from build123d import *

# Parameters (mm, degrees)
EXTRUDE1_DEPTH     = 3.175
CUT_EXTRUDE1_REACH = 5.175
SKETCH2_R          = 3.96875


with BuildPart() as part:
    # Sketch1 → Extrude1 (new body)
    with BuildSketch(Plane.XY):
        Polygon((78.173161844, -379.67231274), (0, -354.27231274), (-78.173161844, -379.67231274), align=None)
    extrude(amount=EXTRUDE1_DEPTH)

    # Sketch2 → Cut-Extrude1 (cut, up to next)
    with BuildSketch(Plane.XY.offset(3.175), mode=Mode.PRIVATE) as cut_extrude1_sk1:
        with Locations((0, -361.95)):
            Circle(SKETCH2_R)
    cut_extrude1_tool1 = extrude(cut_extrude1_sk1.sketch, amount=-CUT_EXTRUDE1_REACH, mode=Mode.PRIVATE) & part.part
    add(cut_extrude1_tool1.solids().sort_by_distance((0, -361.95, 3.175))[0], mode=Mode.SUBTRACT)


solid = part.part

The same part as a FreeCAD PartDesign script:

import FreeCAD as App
import Part
import Sketcher
Q = App.Units.Quantity

doc = App.newDocument("Part")
body = doc.addObject("PartDesign::Body", "Body")

# Sketch on XY plane
sketch1 = body.newObject("Sketcher::SketchObject", "Sketch")
sketch1.AttachmentSupport = (doc.getObject("XY_Plane"), [""])
sketch1.MapMode = "FlatFace"
sketch1.addGeometry([
    Part.LineSegment(App.Vector(78.173162, -379.672313, 0), App.Vector(0, -354.272313, 0)),
    Part.LineSegment(App.Vector(0, -354.272313, 0), App.Vector(-78.173162, -379.672313, 0)),
    Part.LineSegment(App.Vector(-78.173162, -379.672313, 0), App.Vector(78.173162, -379.672313, 0)),
], False)
sketch1.addConstraint([
    Sketcher.Constraint("Coincident", 0, 2, 1, 1),
    Sketcher.Constraint("Coincident", 1, 2, 2, 1),
    Sketcher.Constraint("Coincident", 2, 2, 0, 1),
    Sketcher.Constraint("Horizontal", 2),
    Sketcher.Constraint("PointOnObject", 0, 2, -2),
    Sketcher.Constraint("Equal", 0, 1),
    Sketcher.Constraint("Angle", 0, Q("162 deg")),
    Sketcher.Constraint("DistanceY", 1, 2, 0, 2, Q("1 in")),
    Sketcher.Constraint("DistanceY", 0, 2, -1, 1, Q("354.272313 mm")),
])
pad1 = body.newObject("PartDesign::Pad", "Pad")
pad1.Profile = sketch1
pad1.Length = Q("0.125 in")

# Sketch on XY plane
sketch2 = body.newObject("Sketcher::SketchObject", "Sketch001")
sketch2.AttachmentSupport = (doc.getObject("XY_Plane"), [""])
sketch2.MapMode = "FlatFace"
sketch2.AttachmentOffset = App.Placement(App.Vector(0, 0, 0.125 * 25.4), App.Rotation())
sketch2.addGeometry(Part.Circle(App.Vector(0, -361.95, 0), App.Vector(0, 0, 1), 3.96875), False)
sketch2.addConstraint([
    Sketcher.Constraint("PointOnObject", 0, 3, -2),
    Sketcher.Constraint("Diameter", 0, Q("0.3125 in")),
    Sketcher.Constraint("DistanceY", 0, 3, -1, 1, Q("14.25 in")),
])
pocket1 = body.newObject("PartDesign::Pocket", "Pocket")
pocket1.Profile = sketch2
pocket1.Type = "UpToFirst"

doc.recompute()
